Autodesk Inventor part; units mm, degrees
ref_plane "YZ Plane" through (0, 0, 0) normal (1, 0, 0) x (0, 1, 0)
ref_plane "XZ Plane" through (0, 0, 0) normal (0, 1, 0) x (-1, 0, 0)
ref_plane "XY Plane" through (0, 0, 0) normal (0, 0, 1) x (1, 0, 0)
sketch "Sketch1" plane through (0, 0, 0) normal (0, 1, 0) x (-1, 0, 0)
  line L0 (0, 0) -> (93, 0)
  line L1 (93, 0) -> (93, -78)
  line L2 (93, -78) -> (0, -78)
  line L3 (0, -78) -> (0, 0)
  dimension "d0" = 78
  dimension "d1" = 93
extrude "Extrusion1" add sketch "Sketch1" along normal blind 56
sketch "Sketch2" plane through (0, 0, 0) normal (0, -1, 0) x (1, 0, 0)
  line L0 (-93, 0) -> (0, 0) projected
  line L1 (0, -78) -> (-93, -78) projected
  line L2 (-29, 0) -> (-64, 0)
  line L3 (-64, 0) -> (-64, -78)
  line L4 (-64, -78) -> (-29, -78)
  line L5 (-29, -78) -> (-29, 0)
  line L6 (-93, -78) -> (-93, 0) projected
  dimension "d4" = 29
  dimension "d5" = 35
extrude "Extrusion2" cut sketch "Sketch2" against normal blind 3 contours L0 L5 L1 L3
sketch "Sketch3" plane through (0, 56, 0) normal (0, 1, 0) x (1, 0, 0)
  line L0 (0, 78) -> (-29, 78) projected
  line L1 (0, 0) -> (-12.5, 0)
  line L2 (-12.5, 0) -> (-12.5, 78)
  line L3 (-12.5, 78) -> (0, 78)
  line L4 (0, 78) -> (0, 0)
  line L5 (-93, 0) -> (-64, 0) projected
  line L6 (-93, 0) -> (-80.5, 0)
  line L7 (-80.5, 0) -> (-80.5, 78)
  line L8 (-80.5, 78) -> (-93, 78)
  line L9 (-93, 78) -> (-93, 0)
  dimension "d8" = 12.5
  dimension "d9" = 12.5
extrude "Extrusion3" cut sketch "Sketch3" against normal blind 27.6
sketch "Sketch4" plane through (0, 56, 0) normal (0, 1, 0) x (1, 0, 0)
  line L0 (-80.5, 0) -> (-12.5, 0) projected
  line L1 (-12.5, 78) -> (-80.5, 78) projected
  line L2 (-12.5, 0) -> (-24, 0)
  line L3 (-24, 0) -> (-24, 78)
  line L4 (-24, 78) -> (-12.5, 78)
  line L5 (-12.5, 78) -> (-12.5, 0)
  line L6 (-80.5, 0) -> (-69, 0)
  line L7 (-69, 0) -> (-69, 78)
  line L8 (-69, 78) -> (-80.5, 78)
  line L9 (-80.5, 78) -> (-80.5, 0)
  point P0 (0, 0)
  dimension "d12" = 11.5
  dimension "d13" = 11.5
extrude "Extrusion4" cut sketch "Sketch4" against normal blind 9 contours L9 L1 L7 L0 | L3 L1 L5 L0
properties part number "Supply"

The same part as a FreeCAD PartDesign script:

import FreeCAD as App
import Part
import Sketcher

V = App.Vector
Q = App.Units.Quantity


def add_polygon(sketch, points):
    """Adds a closed chain of lines whose ends are joined by coincident constraints."""
    first, n = sketch.GeometryCount, len(points)
    for a, b in zip(points, points[1:] + points[:1]):
        sketch.addGeometry(Part.LineSegment(App.Vector(*a, 0), App.Vector(*b, 0)), False)
    for i in range(n):
        sketch.addConstraint(Sketcher.Constraint("Coincident", first + i, 2, first + (i + 1) % n, 1))

doc = App.newDocument("Part")
params = doc.addObject("Spreadsheet::Sheet", "Params")
for row, (alias, value) in enumerate([
    ("sketch1_width", "93 mm"),
    ("sketch1_height", "78 mm"),
    ("pad1_length", "56 mm"),
    ("sketch2_width", "35 mm"),
    ("sketch2_height", "78 mm"),
    ("pocket1_length", "3 mm"),
    ("sketch3_width", "12.5 mm"),
    ("sketch3_height", "78 mm"),
    ("pocket2_length", "27.6 mm"),
    ("sketch4_width", "11.5 mm"),
    ("sketch4_height", "78 mm"),
    ("pocket3_length", "9 mm"),
], start=1):
    params.set(f"A{row}", alias)
    params.set(f"B{row}", "=" + value)
    params.setAlias(f"B{row}", alias)

body = doc.addObject("PartDesign::Body", "Body")

# Sketch on XZ plane
sketch1 = doc.addObject("Sketcher::SketchObject", "Sketch")
body.addObject(sketch1)
sketch1.AttachmentSupport = (doc.XZ_Plane, [""])
sketch1.MapMode = "FlatFace"
add_polygon(sketch1, [(-93, 0), (0, 0), (0, -78), (-93, -78)])  # lines 0-3
sketch1.addConstraint([
    Sketcher.Constraint("Horizontal", 0),
    Sketcher.Constraint("Vertical", 1),
    Sketcher.Constraint("Horizontal", 2),
    Sketcher.Constraint("Vertical", 3),
    Sketcher.Constraint("Coincident", 0, 2, -1, 1),
    Sketcher.Constraint("DistanceX", 0, 1, 0, 2, Q("93 mm")),
    Sketcher.Constraint("DistanceY", 1, 2, 1, 1, Q("78 mm")),
])
sketch1.setExpression("Constraints[9]", "Params.sketch1_width")
sketch1.setExpression("Constraints[10]", "Params.sketch1_height")
pad1 = doc.addObject("PartDesign::Pad", "Pad")
body.addObject(pad1)
pad1.Profile = sketch1
pad1.setExpression("Length", "Params.pad1_length")
pad1.Reversed = True

# Sketch on XZ plane
sketch2 = doc.addObject("Sketcher::SketchObject", "Sketch001")
body.addObject(sketch2)
sketch2.AttachmentSupport = (doc.XZ_Plane, [""])
sketch2.MapMode = "FlatFace"
add_polygon(sketch2, [(-29, 0), (-64, 0), (-64, -78), (-29, -78)])  # lines 0-3
sketch2.addConstraint([
    Sketcher.Constraint("Horizontal", 0),
    Sketcher.Constraint("Vertical", 1),
    Sketcher.Constraint("Horizontal", 2),
    Sketcher.Constraint("Vertical", 3),
    Sketcher.Constraint("PointOnObject", 0, 2, -1),
    Sketcher.Constraint("DistanceX", 0, 2, 0, 1, Q("35 mm")),
    Sketcher.Constraint("DistanceX", 2, 2, -1, 1, Q("29 mm")),
    Sketcher.Constraint("DistanceY", 1, 2, 1, 1, Q("78 mm")),
])
sketch2.setExpression("Constraints[9]", "Params.sketch2_width")
sketch2.setExpression("Constraints[11]", "Params.sketch2_height")
pocket1 = doc.addObject("PartDesign::Pocket", "Pocket")
body.addObject(pocket1)
pocket1.Profile = sketch2
pocket1.setExpression("Length", "Params.pocket1_length")

# Sketch on XZ plane
sketch3 = doc.addObject("Sketcher::SketchObject", "Sketch002")
body.addObject(sketch3)
sketch3.AttachmentSupport = (doc.XZ_Plane, [""])
sketch3.MapMode = "FlatFace"
sketch3.AttachmentOffset = App.Placement(V(0, 0, -56), App.Rotation())
add_polygon(sketch3, [(0, 0), (0, -78), (-12, -78), (-12, 0)])  # lines 0-3
add_polygon(sketch3, [(-93, -78), (-93, 0), (-80, 0), (-80, -78)])  # lines 4-7
sketch3.addConstraint([
    Sketcher.Constraint("Vertical", 0),
    Sketcher.Constraint("Horizontal", 1),
    Sketcher.Constraint("Vertical", 2),
    Sketcher.Constraint("Horizontal", 3),
    Sketcher.Constraint("Vertical", 4),
    Sketcher.Constraint("Horizontal", 5),
    Sketcher.Constraint("Vertical", 6),
    Sketcher.Constraint("Horizontal", 7),
    Sketcher.Constraint("Coincident", 3, 2, -1, 1),
    Sketcher.Constraint("PointOnObject", 4, 2, -1),
    Sketcher.Constraint("Horizontal", 1, 2, 6, 2),
    Sketcher.Constraint("Equal", 3, 5),
    Sketcher.Constraint("DistanceX", 1, 2, 1, 1, Q("12.5 mm")),
    Sketcher.Constraint("DistanceY", 0, 2, 0, 1, Q("78 mm")),
    Sketcher.Constraint("DistanceX", 4, 2, -1, 1, Q("93 mm")),
])
sketch3.setExpression("Constraints[20]", "Params.sketch3_width")
sketch3.setExpression("Constraints[21]", "Params.sketch3_height")
pocket2 = doc.addObject("PartDesign::Pocket", "Pocket001")
body.addObject(pocket2)
pocket2.Profile = sketch3
pocket2.setExpression("Length", "Params.pocket2_length")
pocket2.Reversed = True

# Sketch on XZ plane
sketch4 = doc.addObject("Sketcher::SketchObject", "Sketch003")
body.addObject(sketch4)
sketch4.AttachmentSupport = (doc.XZ_Plane, [""])
sketch4.MapMode = "FlatFace"
sketch4.AttachmentOffset = App.Placement(V(0, 0, -56), App.Rotation())
add_polygon(sketch4, [(-80, -78), (-80, 0), (-69, 0), (-69, -78)])  # lines 0-3
add_polygon(sketch4, [(-24, -78), (-24, 0), (-12, 0), (-12, -78)])  # lines 4-7
sketch4.addConstraint([
    Sketcher.Constraint("Vertical", 0),
    Sketcher.Constraint("Horizontal", 1),
    Sketcher.Constraint("Vertical", 2),
    Sketcher.Constraint("Horizontal", 3),
    Sketcher.Constraint("Vertical", 4),
    Sketcher.Constraint("Horizontal", 5),
    Sketcher.Constraint("Vertical", 6),
    Sketcher.Constraint("Horizontal", 7),
    Sketcher.Constraint("PointOnObject", 0, 2, -1),
    Sketcher.Constraint("PointOnObject", 4, 2, -1),
    Sketcher.Constraint("Horizontal", 3, 2, 6, 2),
    Sketcher.Constraint("Equal", 3, 5),
    Sketcher.Constraint("DistanceX", 1, 1, 1, 2, Q("11.5 mm")),
    Sketcher.Constraint("DistanceY", 0, 1, 0, 2, Q("78 mm")),
    Sketcher.Constraint("DistanceX", 1, 2, -1, 1, Q("69 mm")),
    Sketcher.Constraint("DistanceX", 4, 2, -1, 1, Q("24 mm")),
])
sketch4.setExpression("Constraints[20]", "Params.sketch4_width")
sketch4.setExpression("Constraints[21]", "Params.sketch4_height")
pocket3 = doc.addObject("PartDesign::Pocket", "Pocket002")
body.addObject(pocket3)
pocket3.Profile = sketch4
pocket3.setExpression("Length", "Params.pocket3_length")
pocket3.Reversed = True

doc.recompute()
